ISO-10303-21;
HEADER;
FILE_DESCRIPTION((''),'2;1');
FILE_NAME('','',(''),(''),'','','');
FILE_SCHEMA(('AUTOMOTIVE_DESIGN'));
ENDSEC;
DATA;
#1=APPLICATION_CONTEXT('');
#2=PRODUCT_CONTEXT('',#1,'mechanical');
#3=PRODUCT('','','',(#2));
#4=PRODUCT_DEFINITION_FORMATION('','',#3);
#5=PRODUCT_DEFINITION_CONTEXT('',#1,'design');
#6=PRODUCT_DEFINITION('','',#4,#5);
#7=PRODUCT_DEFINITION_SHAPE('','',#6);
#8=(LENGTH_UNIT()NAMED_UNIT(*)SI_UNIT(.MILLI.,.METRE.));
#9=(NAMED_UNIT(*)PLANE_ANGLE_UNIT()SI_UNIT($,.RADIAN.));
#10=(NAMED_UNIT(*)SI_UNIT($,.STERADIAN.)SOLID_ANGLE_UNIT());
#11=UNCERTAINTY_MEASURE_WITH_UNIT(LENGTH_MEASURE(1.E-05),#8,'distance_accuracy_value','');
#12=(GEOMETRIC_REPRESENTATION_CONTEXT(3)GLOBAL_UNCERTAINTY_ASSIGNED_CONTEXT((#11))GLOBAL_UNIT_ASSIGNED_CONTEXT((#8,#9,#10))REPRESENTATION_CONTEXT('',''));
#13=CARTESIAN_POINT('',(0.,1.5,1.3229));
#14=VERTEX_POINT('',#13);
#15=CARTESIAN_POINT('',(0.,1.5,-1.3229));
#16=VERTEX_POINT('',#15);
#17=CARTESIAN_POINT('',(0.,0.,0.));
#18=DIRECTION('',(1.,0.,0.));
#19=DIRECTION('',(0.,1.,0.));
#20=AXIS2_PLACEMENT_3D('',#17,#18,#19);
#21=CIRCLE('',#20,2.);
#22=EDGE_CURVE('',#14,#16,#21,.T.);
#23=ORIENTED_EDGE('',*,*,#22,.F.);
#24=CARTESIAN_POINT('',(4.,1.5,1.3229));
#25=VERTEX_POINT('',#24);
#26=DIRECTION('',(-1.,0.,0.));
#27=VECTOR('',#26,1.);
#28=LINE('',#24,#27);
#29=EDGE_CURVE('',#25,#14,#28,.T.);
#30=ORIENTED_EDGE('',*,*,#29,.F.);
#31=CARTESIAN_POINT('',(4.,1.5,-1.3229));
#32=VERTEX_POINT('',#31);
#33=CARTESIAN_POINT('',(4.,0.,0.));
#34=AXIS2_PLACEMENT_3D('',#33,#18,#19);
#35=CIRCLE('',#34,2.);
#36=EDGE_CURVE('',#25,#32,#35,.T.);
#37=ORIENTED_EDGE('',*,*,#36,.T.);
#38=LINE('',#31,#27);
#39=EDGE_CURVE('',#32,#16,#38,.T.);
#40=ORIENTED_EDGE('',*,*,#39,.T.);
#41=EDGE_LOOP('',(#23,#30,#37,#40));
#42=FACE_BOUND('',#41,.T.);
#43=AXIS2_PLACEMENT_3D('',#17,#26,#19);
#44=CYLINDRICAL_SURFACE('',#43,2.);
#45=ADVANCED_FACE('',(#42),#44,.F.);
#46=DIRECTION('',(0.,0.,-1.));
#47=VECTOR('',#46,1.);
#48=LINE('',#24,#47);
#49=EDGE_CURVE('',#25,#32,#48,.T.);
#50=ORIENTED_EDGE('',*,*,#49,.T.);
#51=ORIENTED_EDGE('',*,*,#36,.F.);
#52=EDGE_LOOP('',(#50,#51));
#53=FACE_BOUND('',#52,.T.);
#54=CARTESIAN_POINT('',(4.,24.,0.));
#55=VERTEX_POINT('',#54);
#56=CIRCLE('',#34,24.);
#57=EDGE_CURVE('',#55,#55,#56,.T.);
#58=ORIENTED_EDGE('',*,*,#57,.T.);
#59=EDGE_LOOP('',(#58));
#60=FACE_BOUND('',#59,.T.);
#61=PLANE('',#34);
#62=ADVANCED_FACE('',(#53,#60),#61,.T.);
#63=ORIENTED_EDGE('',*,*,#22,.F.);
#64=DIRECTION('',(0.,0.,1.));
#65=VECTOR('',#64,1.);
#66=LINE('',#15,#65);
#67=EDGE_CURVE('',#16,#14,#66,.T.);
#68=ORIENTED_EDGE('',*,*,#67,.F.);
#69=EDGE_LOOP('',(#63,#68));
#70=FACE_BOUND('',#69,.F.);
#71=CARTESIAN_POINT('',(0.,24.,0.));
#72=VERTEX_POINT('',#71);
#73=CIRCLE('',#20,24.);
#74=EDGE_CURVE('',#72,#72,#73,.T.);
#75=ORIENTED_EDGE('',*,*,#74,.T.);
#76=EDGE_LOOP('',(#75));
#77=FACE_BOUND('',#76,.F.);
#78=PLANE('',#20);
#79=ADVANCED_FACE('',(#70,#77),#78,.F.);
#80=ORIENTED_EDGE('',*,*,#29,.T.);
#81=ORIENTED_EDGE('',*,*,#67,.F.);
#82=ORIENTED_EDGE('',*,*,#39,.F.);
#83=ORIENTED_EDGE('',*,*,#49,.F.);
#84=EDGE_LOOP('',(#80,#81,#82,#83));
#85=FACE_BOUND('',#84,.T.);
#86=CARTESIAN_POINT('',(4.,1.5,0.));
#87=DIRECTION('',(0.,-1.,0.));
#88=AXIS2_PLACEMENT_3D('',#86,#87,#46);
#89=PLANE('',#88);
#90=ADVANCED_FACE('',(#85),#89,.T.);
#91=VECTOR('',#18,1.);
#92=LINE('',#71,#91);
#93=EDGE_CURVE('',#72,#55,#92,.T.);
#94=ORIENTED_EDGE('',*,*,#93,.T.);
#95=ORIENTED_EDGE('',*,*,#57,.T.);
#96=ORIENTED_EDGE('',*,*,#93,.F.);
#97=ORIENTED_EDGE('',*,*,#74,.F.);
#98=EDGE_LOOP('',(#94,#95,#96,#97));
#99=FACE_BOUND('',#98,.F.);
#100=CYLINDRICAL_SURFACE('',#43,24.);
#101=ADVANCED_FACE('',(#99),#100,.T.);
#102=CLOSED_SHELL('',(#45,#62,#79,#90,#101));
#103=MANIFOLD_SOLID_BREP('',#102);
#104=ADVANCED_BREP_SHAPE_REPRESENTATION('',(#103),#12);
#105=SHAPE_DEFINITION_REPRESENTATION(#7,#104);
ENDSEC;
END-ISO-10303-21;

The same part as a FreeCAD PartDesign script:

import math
import FreeCAD as App
import Part
import Sketcher

V = App.Vector

doc = App.newDocument("Part")
body = doc.addObject("PartDesign::Body", "Body")

# Sketch on YZ plane
sketch1 = body.newObject("Sketcher::SketchObject", "Sketch")
sketch1.AttachmentSupport = (doc.getObject("YZ_Plane"), [""])
sketch1.MapMode = "FlatFace"
sketch1.addGeometry([
    Part.Circle(V(0, 0, 0), V(0, 0, 1), 24),
    Part.Circle(V(0, 0, 0), V(0, 0, 1), 2),
], False)
sketch1.addConstraint([
    Sketcher.Constraint("Coincident", 0, 3, -1, 1),
    Sketcher.Constraint("Coincident", 1, 3, -1, 1),
    Sketcher.Constraint("Diameter", 0, 48.0),
    Sketcher.Constraint("Diameter", 1, 4.0),
])
pad1 = body.newObject("PartDesign::Pad", "Pad")
pad1.Profile = sketch1
pad1.Length = 4

# Sketch on YZ plane
sketch2 = body.newObject("Sketcher::SketchObject", "Sketch001")
sketch2.AttachmentSupport = (doc.getObject("YZ_Plane"), [""])
sketch2.MapMode = "FlatFace"
sketch2.AttachmentOffset = App.Placement(V(0, 0, 4), App.Rotation())
sketch2.addGeometry([
    Part.LineSegment(V(1.5, 1.3229, 0), V(1.5, -1.3229, 0)),
    Part.ArcOfCircle(Part.Circle(V(0, 0, 0), V(0, 0, 1), 2), math.radians(-41.410145), math.radians(41.410145)),
], False)
sketch2.addConstraint([
    Sketcher.Constraint("Coincident", 0, 1, 1, 2),
    Sketcher.Constraint("Coincident", 1, 1, 0, 2),
    Sketcher.Constraint("Vertical", 0),
    Sketcher.Constraint("Coincident", 1, 3, -1, 1),
    Sketcher.Constraint("Radius", 1, 2.0),
    Sketcher.Constraint("DistanceX", -1, 1, 0, 1, 1.5),
])
pad2 = body.newObject("PartDesign::Pad", "Pad001")
pad2.Profile = sketch2
pad2.Length = 4
pad2.Reversed = True

doc.recompute()
